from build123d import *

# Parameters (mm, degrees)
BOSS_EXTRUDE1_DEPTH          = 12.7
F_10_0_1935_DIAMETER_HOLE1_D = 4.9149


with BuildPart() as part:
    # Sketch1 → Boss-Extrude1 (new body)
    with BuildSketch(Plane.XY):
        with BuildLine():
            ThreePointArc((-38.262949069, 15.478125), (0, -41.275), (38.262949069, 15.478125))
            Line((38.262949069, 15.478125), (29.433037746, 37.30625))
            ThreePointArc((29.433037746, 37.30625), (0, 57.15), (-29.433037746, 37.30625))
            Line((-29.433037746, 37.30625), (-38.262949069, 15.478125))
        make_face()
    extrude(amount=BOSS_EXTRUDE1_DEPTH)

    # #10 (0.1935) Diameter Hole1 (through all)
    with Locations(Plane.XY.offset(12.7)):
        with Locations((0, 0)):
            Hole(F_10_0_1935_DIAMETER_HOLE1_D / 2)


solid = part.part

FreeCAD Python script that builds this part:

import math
import FreeCAD as App
import Part
import Sketcher
Q = App.Units.Quantity

doc = App.newDocument("Part")
body = doc.addObject("PartDesign::Body", "Body")

# Sketch on XY plane
sketch1 = body.newObject("Sketcher::SketchObject", "Sketch")
sketch1.AttachmentSupport = (doc.getObject("XY_Plane"), [""])
sketch1.MapMode = "FlatFace"
sketch1.addGeometry([
    Part.ArcOfCircle(Part.Circle(App.Vector(0, 0, 0), App.Vector(0, 0, 1), 41), math.radians(158), math.radians(382)),
    Part.LineSegment(App.Vector(38, 15, 0), App.Vector(29, 37, 0)),
    Part.ArcOfCircle(Part.Circle(App.Vector(0, 25, 0), App.Vector(0, 0, 1), 32), math.radians(22), math.radians(158)),
    Part.LineSegment(App.Vector(-29, 37, 0), App.Vector(-38, 15, 0)),
], False)
sketch1.addConstraint([
    Sketcher.Constraint("Tangent", 0, 2, 1, 1),
    Sketcher.Constraint("Tangent", 1, 2, 2, 1),
    Sketcher.Constraint("Tangent", 2, 2, 3, 1),
    Sketcher.Constraint("Tangent", 3, 2, 0, 1),
    Sketcher.Constraint("Coincident", 0, 3, -1, 1),
    Sketcher.Constraint("PointOnObject", 2, 3, -2),
    Sketcher.Constraint("Radius", 2, Q("1.25 in")),
    Sketcher.Constraint("DistanceY", -1, 1, 2, 3, Q("1 in")),
    Sketcher.Constraint("Radius", 0, Q("1.625 in")),
])
pad1 = body.newObject("PartDesign::Pad", "Pad")
pad1.Profile = sketch1
pad1.Length = Q("0.5 in")

# Sketch on XY plane
sketch2 = body.newObject("Sketcher::SketchObject", "Sketch001")
sketch2.AttachmentSupport = (doc.getObject("XY_Plane"), [""])
sketch2.MapMode = "FlatFace"
sketch2.AttachmentOffset = App.Placement(App.Vector(0, 0, 0.5 * 25.4), App.Rotation())
sketch2.addGeometry(Part.Circle(App.Vector(0, 0, 0), App.Vector(0, 0, 1), 2.5), False)
sketch2.addConstraint([
    Sketcher.Constraint("Coincident", 0, 3, -1, 1),
    Sketcher.Constraint("Diameter", 0, Q("0.1935 in")),
])
doc.recompute()
hole = body.newObject("PartDesign::Hole", "Hole")
hole.Profile = sketch2
hole.ThreadType = "None"
hole.Diameter = Q("0.1935 in")
hole.DepthType = "ThroughAll"

doc.recompute()
